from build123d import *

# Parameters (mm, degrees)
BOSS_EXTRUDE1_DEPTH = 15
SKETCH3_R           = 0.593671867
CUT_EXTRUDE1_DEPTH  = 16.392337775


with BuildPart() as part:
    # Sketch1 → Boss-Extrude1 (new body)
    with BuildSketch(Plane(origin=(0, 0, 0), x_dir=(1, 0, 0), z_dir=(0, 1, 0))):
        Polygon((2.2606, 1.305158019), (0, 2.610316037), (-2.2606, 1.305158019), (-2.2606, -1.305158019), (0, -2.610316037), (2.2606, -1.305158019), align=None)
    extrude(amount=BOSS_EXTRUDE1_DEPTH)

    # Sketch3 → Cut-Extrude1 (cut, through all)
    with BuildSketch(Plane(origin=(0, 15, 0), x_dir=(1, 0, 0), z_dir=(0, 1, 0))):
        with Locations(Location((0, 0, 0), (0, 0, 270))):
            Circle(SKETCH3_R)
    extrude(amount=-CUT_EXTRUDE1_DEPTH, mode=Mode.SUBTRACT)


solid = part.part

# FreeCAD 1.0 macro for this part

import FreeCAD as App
import Part
import Sketcher
Q = App.Units.Quantity


def add_polygon(sketch, points):
    """Adds a closed chain of lines whose ends are joined by coincident constraints."""
    first, n = sketch.GeometryCount, len(points)
    for a, b in zip(points, points[1:] + points[:1]):
        sketch.addGeometry(Part.LineSegment(App.Vector(*a, 0), App.Vector(*b, 0)), False)
    for i in range(n):
        sketch.addConstraint(Sketcher.Constraint("Coincident", first + i, 2, first + (i + 1) % n, 1))

doc = App.newDocument("Part")
params = doc.addObject("Spreadsheet::Sheet", "Params")
for row, (alias, value) in enumerate([
    ("pad1_length", "15 mm"),
], start=1):
    params.set(f"A{row}", alias)
    params.set(f"B{row}", "=" + value)
    params.setAlias(f"B{row}", alias)

body = doc.addObject("PartDesign::Body", "Body")

sketch1 = body.newObject("Sketcher::SketchObject", "Sketch")
sketch1.AttachmentSupport = (doc.getObject("XZ_Plane"), [""])
sketch1.MapMode = "FlatFace"
add_polygon(sketch1, [(2.3, -1.3), (0, -2.6), (-2.3, -1.3), (-2.3, 1.3), (0, 2.6), (2.3, 1.3)])
sketch1.addConstraint([
    Sketcher.Constraint("Vertical", 2),
    Sketcher.Constraint("Vertical", 5),
    Sketcher.Constraint("Symmetric", 0, 2, 3, 2, -1, 1),
    Sketcher.Constraint("Symmetric", 1, 2, 4, 2, -1, 1),
    Sketcher.Constraint("PointOnObject", 0, 2, -2),
    Sketcher.Constraint("Parallel", 0, 3),
    Sketcher.Constraint("Horizontal", 2, 2, 4, 2),
    Sketcher.Constraint("Angle", 0, Q("-150 deg")),
    Sketcher.Constraint("DistanceX", 1, 2, -1, 1, 2.2606),
    Sketcher.Constraint("DistanceY", 2, 1, 2, 2, 2.610316),
])
pad1 = body.newObject("PartDesign::Pad", "Pad")
pad1.Profile = sketch1
pad1.setExpression("Length", "Params.pad1_length")
pad1.Reversed = True

sketch2 = body.newObject("Sketcher::SketchObject", "Sketch001")
sketch2.AttachmentSupport = (doc.getObject("XZ_Plane"), [""])
sketch2.MapMode = "FlatFace"
sketch2.AttachmentOffset = App.Placement(App.Vector(0, 0, -15), App.Rotation())
sketch2.addGeometry(Part.Circle(App.Vector(0, 0, 0), App.Vector(0, 0, 1), 0.6), False)
sketch2.addConstraint([
    Sketcher.Constraint("Coincident", 0, 3, -1, 1),
    Sketcher.Constraint("Diameter", 0, 1.187344),
])
pocket1 = body.newObject("PartDesign::Pocket", "Pocket")
pocket1.Profile = sketch2
pocket1.Type = "ThroughAll"
pocket1.Reversed = True

doc.recompute()
